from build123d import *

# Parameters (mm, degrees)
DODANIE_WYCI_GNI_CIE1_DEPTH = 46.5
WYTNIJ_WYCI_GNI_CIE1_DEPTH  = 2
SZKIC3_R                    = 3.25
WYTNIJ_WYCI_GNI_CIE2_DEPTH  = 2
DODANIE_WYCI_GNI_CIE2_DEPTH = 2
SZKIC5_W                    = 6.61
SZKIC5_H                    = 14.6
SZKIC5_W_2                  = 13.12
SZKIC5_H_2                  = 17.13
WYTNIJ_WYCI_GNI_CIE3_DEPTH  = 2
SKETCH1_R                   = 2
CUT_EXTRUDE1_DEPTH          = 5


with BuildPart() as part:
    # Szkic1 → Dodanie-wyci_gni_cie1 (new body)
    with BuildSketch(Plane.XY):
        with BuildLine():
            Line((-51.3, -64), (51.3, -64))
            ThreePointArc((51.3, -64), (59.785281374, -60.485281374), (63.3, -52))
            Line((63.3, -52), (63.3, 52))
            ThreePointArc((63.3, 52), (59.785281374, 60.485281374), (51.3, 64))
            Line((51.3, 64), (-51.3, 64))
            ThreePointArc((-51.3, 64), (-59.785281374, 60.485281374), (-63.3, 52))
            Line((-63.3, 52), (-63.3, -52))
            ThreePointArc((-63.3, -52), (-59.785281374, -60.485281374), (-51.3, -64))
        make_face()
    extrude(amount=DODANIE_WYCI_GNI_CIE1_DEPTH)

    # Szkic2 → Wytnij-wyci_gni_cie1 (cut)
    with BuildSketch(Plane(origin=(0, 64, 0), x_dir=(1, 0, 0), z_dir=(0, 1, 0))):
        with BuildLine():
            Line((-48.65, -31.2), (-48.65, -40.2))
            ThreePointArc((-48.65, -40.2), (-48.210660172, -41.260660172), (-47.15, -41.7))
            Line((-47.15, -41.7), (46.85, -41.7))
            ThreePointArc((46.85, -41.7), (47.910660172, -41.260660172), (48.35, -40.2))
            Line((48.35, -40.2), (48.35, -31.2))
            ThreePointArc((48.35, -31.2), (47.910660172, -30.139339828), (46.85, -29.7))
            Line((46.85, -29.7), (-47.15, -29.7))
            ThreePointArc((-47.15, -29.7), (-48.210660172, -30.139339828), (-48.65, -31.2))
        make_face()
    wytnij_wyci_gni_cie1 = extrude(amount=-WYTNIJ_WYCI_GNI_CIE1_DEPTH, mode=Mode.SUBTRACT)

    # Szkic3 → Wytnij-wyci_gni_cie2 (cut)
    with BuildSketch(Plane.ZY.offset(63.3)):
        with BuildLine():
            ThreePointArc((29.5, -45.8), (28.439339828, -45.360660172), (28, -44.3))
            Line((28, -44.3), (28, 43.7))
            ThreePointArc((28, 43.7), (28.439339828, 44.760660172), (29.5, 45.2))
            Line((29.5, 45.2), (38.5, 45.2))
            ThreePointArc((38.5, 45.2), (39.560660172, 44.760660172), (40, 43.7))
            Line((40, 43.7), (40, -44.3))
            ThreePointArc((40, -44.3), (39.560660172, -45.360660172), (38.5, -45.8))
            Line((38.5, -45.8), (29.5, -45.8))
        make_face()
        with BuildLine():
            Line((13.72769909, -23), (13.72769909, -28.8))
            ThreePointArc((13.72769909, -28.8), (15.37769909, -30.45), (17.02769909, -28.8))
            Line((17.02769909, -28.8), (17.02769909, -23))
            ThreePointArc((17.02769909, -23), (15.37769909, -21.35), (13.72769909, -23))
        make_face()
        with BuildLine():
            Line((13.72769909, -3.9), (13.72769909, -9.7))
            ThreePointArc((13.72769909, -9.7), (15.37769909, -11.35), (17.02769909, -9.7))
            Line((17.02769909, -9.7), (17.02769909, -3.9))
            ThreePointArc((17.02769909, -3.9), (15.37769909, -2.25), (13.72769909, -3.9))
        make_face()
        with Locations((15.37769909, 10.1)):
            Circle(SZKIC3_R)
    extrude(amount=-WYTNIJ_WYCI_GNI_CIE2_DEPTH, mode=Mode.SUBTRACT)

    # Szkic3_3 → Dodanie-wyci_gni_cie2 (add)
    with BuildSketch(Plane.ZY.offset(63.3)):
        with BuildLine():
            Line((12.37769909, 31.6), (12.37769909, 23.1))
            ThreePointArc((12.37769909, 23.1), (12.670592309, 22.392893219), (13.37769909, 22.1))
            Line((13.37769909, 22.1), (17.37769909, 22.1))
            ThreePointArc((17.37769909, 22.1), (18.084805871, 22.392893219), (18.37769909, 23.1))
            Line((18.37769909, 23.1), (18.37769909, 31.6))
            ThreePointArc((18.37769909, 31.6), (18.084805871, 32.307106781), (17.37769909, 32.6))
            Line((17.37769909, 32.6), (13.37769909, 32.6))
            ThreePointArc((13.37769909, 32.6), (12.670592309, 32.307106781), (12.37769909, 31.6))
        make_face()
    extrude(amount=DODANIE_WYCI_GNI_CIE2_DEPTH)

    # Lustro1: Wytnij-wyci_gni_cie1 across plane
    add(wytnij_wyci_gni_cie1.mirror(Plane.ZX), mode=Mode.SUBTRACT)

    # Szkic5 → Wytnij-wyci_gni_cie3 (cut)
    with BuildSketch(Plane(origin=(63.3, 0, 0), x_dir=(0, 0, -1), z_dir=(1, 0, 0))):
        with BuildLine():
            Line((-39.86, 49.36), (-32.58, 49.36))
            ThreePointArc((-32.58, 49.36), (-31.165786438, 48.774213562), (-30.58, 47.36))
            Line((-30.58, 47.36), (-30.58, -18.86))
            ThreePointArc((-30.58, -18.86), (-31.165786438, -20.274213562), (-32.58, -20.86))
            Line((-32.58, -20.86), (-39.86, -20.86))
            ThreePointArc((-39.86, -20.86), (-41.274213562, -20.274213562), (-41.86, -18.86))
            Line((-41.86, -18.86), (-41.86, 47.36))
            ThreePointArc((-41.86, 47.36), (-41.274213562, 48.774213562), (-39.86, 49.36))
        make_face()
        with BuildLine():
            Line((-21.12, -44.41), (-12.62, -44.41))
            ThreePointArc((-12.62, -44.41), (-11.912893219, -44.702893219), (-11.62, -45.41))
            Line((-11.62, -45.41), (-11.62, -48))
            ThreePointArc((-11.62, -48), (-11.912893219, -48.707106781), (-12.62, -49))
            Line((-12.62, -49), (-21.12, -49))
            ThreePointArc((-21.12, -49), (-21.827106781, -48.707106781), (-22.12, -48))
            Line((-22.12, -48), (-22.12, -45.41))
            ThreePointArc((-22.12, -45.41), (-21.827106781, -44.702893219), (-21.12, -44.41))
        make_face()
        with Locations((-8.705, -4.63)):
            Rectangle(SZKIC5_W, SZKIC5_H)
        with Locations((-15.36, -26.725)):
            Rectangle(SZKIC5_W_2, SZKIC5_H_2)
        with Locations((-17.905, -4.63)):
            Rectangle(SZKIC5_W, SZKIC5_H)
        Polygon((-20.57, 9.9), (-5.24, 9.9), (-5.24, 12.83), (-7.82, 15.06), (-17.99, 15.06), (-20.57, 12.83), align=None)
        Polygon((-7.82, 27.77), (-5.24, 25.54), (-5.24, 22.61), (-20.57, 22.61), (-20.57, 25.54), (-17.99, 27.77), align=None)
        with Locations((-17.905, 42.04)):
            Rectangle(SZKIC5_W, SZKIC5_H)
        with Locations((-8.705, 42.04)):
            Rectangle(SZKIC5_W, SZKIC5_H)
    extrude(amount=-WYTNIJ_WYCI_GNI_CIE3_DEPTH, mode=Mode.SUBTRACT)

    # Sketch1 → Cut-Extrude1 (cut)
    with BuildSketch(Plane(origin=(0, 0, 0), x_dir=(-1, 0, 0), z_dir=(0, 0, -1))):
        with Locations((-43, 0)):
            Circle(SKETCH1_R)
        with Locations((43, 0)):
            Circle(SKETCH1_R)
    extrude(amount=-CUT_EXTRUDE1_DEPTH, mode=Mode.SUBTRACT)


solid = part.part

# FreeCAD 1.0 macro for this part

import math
import FreeCAD as App
import Part
import Sketcher
Q = App.Units.Quantity

doc = App.newDocument("Part")
body = doc.addObject("PartDesign::Body", "Body")

# Sketch on XY plane
sketch1 = body.newObject("Sketcher::SketchObject", "Sketch")
sketch1.AttachmentSupport = (doc.getObject("XY_Plane"), [""])
sketch1.MapMode = "FlatFace"
sketch1.addGeometry([
    Part.LineSegment(App.Vector(-51, -64, 0), App.Vector(51, -64, 0)),  # 0
    Part.ArcOfCircle(Part.Circle(App.Vector(51, -52, 0), App.Vector(0, 0, 1), 12), math.radians(-90), math.radians(0)),  # 1
    Part.LineSegment(App.Vector(63, -52, 0), App.Vector(63, 52, 0)),  # 2
    Part.ArcOfCircle(Part.Circle(App.Vector(51, 52, 0), App.Vector(0, 0, 1), 12), math.radians(0), math.radians(90)),  # 3
    Part.LineSegment(App.Vector(51, 64, 0), App.Vector(-51, 64, 0)),  # 4
    Part.ArcOfCircle(Part.Circle(App.Vector(-51, 52, 0), App.Vector(0, 0, 1), 12), math.radians(90), math.radians(180)),  # 5
    Part.LineSegment(App.Vector(-63, 52, 0), App.Vector(-63, -52, 0)),  # 6
    Part.ArcOfCircle(Part.Circle(App.Vector(-51, -52, 0), App.Vector(0, 0, 1), 12), math.radians(-180), math.radians(-90)),  # 7
], False)
sketch1.addConstraint([
    Sketcher.Constraint("Tangent", 0, 2, 1, 1),
    Sketcher.Constraint("Tangent", 1, 2, 2, 1),
    Sketcher.Constraint("Tangent", 2, 2, 3, 1),
    Sketcher.Constraint("Tangent", 3, 2, 4, 1),
    Sketcher.Constraint("Tangent", 4, 2, 5, 1),
    Sketcher.Constraint("Tangent", 5, 2, 6, 1),
    Sketcher.Constraint("Tangent", 6, 2, 7, 1),
    Sketcher.Constraint("Tangent", 7, 2, 0, 1),
    Sketcher.Constraint("Horizontal", 0),
    Sketcher.Constraint("Vertical", 2),
    Sketcher.Constraint("Horizontal", 4),
    Sketcher.Constraint("Vertical", 6),
    Sketcher.Constraint("Equal", 1, 3),
    Sketcher.Constraint("Equal", 3, 5),
    Sketcher.Constraint("Equal", 5, 7),
    Sketcher.Constraint("Symmetric", 1, 3, 5, 3, -1, 1),
    Sketcher.Constraint("Radius", 1, Q("12 mm")),
    Sketcher.Constraint("DistanceY", 2, 1, 2, 2, Q("104 mm")),
    Sketcher.Constraint("DistanceX", 0, 1, 0, 2, Q("102.6 mm")),
])
pad1 = body.newObject("PartDesign::Pad", "Pad")
pad1.Profile = sketch1
pad1.Length = 46.5

# Sketch on XZ plane
sketch2 = body.newObject("Sketcher::SketchObject", "Sketch001")
sketch2.AttachmentSupport = (doc.getObject("XZ_Plane"), [""])
sketch2.MapMode = "FlatFace"
sketch2.AttachmentOffset = App.Placement(App.Vector(0, 0, -64), App.Rotation())
sketch2.addGeometry([
    Part.LineSegment(App.Vector(-48.6, 31.2, 0), App.Vector(-48.6, 40.2, 0)),  # 0
    Part.ArcOfCircle(Part.Circle(App.Vector(-47.2, 40.2, 0), App.Vector(0, 0, 1), 1.5), math.radians(90), math.radians(180)),  # 1
    Part.LineSegment(App.Vector(-47.1, 41.7, 0), App.Vector(46.9, 41.7, 0)),  # 2
    Part.ArcOfCircle(Part.Circle(App.Vector(46.9, 40.2, 0), App.Vector(0, 0, 1), 1.5), math.radians(0), math.radians(90)),  # 3
    Part.LineSegment(App.Vector(48.4, 40.2, 0), App.Vector(48.4, 31.2, 0)),  # 4
    Part.ArcOfCircle(Part.Circle(App.Vector(46.9, 31.2, 0), App.Vector(0, 0, 1), 1.5), math.radians(-90), math.radians(0)),  # 5
    Part.LineSegment(App.Vector(46.9, 29.7, 0), App.Vector(-47.1, 29.7, 0)),  # 6
    Part.ArcOfCircle(Part.Circle(App.Vector(-47.2, 31.2, 0), App.Vector(0, 0, 1), 1.5), math.radians(180), math.radians(270)),  # 7
], False)
sketch2.addConstraint([
    Sketcher.Constraint("Tangent", 0, 2, 1, 2),
    Sketcher.Constraint("Tangent", 1, 1, 2, 1),
    Sketcher.Constraint("Tangent", 2, 2, 3, 2),
    Sketcher.Constraint("Tangent", 3, 1, 4, 1),
    Sketcher.Constraint("Tangent", 4, 2, 5, 2),
    Sketcher.Constraint("Tangent", 5, 1, 6, 1),
    Sketcher.Constraint("Tangent", 6, 2, 7, 2),
    Sketcher.Constraint("Tangent", 7, 1, 0, 1),
    Sketcher.Constraint("Vertical", 0),
    Sketcher.Constraint("Horizontal", 2),
    Sketcher.Constraint("Vertical", 4),
    Sketcher.Constraint("Horizontal", 6),
    Sketcher.Constraint("Equal", 1, 3),
    Sketcher.Constraint("Equal", 3, 5),
    Sketcher.Constraint("Equal", 5, 7),
    Sketcher.Constraint("Radius", 1, Q("1.5 mm")),
    Sketcher.Constraint("DistanceX", 2, 1, 2, 2, Q("94 mm")),
    Sketcher.Constraint("DistanceY", 0, 1, 0, 2, Q("9 mm")),
    Sketcher.Constraint("DistanceY", -1, 1, 1, 3, Q("40.2 mm")),
    Sketcher.Constraint("DistanceX", 1, 3, -1, 1, Q("47.15 mm")),
])
pocket1 = body.newObject("PartDesign::Pocket", "Pocket")
pocket1.Profile = sketch2
pocket1.Length = 2
pocket1.Reversed = True

# Sketch on YZ plane
sketch3 = body.newObject("Sketcher::SketchObject", "Sketch002")
sketch3.AttachmentSupport = (doc.getObject("YZ_Plane"), [""])
sketch3.MapMode = "FlatFace"
sketch3.AttachmentOffset = App.Placement(App.Vector(0, 0, -63.3), App.Rotation())
sketch3.addGeometry([
    Part.ArcOfCircle(Part.Circle(App.Vector(-44.3, 29.5, 0), App.Vector(0, 0, 1), 1.5), math.radians(180), math.radians(270)),  # 0
    Part.LineSegment(App.Vector(-45.8, 29.5, 0), App.Vector(-45.8, 38.5, 0)),  # 1
    Part.ArcOfCircle(Part.Circle(App.Vector(-44.3, 38.5, 0), App.Vector(0, 0, 1), 1.5), math.radians(90), math.radians(180)),  # 2
    Part.LineSegment(App.Vector(-44.3, 40, 0), App.Vector(43.7, 40, 0)),  # 3
    Part.ArcOfCircle(Part.Circle(App.Vector(43.7, 38.5, 0), App.Vector(0, 0, 1), 1.5), math.radians(0), math.radians(90)),  # 4
    Part.LineSegment(App.Vector(45.2, 38.5, 0), App.Vector(45.2, 29.5, 0)),  # 5
    Part.ArcOfCircle(Part.Circle(App.Vector(43.7, 29.5, 0), App.Vector(0, 0, 1), 1.5), math.radians(-90), math.radians(0)),  # 6
    Part.LineSegment(App.Vector(43.7, 28, 0), App.Vector(-44.3, 28, 0)),  # 7
    Part.LineSegment(App.Vector(-23, 13.7, 0), App.Vector(-28.8, 13.7, 0)),  # 8
    Part.ArcOfCircle(Part.Circle(App.Vector(-28.8, 15.4, 0), App.Vector(0, 0, 1), 1.6), math.radians(90), math.radians(270)),  # 9
    Part.LineSegment(App.Vector(-28.8, 17, 0), App.Vector(-23, 17, 0)),  # 10
    Part.ArcOfCircle(Part.Circle(App.Vector(-23, 15.4, 0), App.Vector(0, 0, 1), 1.6), math.radians(-90), math.radians(90)),  # 11
    Part.LineSegment(App.Vector(-3.9, 13.7, 0), App.Vector(-9.7, 13.7, 0)),  # 12
    Part.ArcOfCircle(Part.Circle(App.Vector(-9.7, 15.4, 0), App.Vector(0, 0, 1), 1.6), math.radians(90), math.radians(270)),  # 13
    Part.LineSegment(App.Vector(-9.7, 17, 0), App.Vector(-3.9, 17, 0)),  # 14
    Part.ArcOfCircle(Part.Circle(App.Vector(-3.9, 15.4, 0), App.Vector(0, 0, 1), 1.6), math.radians(-90), math.radians(90)),  # 15
    Part.Circle(App.Vector(10.1, 15.4, 0), App.Vector(0, 0, 1), 3.2),  # 16
], False)
sketch3.addConstraint([
    Sketcher.Constraint("Tangent", 0, 1, 1, 1),
    Sketcher.Constraint("Tangent", 1, 2, 2, 2),
    Sketcher.Constraint("Tangent", 2, 1, 3, 1),
    Sketcher.Constraint("Tangent", 3, 2, 4, 2),
    Sketcher.Constraint("Tangent", 4, 1, 5, 1),
    Sketcher.Constraint("Tangent", 5, 2, 6, 2),
    Sketcher.Constraint("Tangent", 6, 1, 7, 1),
    Sketcher.Constraint("Tangent", 7, 2, 0, 2),
    Sketcher.Constraint("Tangent", 8, 2, 9, 2),
    Sketcher.Constraint("Tangent", 9, 1, 10, 1),
    Sketcher.Constraint("Tangent", 10, 2, 11, 2),
    Sketcher.Constraint("Tangent", 11, 1, 8, 1),
    Sketcher.Constraint("Tangent", 12, 2, 13, 2),
    Sketcher.Constraint("Tangent", 13, 1, 14, 1),
    Sketcher.Constraint("Tangent", 14, 2, 15, 2),
    Sketcher.Constraint("Tangent", 15, 1, 12, 1),
    Sketcher.Constraint("Vertical", 1),
    Sketcher.Constraint("Horizontal", 3),
    Sketcher.Constraint("Vertical", 5),
    Sketcher.Constraint("Horizontal", 7),
    Sketcher.Constraint("Horizontal", 8),
    Sketcher.Constraint("Horizontal", 10),
    Sketcher.Constraint("Horizontal", 12),
    Sketcher.Constraint("Horizontal", 14),
    Sketcher.Constraint("Equal", 0, 2),
    Sketcher.Constraint("Equal", 2, 4),
    Sketcher.Constraint("Equal", 4, 6),
    Sketcher.Constraint("Equal", 11, 13),
    Sketcher.Constraint("Horizontal", 11, 3, 13, 3),
    Sketcher.Constraint("Horizontal", 15, 3, 16, 3),
    Sketcher.Constraint("Equal", 10, 12),
    Sketcher.Constraint("Diameter", 16, Q("6.5 mm")),
    Sketcher.Constraint("Radius", 0, Q("1.5 mm")),
    Sketcher.Constraint("DistanceX", 3, 1, 3, 2, Q("88 mm")),
    Sketcher.Constraint("DistanceY", 1, 1, 1, 2, Q("9 mm")),
    Sketcher.Constraint("Radius", 9, Q("1.65 mm")),
    Sketcher.Constraint("DistanceX", 8, 2, 8, 1, Q("5.8 mm")),
    Sketcher.Constraint("DistanceX", 11, 3, -1, 1, Q("23 mm")),
    Sketcher.Constraint("DistanceY", -1, 1, 2, 1, Q("40 mm")),
    Sketcher.Constraint("DistanceX", 15, 3, 16, 3, Q("14 mm")),
    Sketcher.Constraint("DistanceX", 0, 1, 9, 3, Q("17 mm")),
    Sketcher.Constraint("DistanceX", 13, 3, -1, 1, Q("9.7 mm")),
    Sketcher.Constraint("DistanceY", -1, 1, 9, 3, Q("15.377699 mm")),
])
pocket2 = body.newObject("PartDesign::Pocket", "Pocket001")
pocket2.Profile = sketch3
pocket2.Length = 2
pocket2.Reversed = True

# Sketch on YZ plane
sketch4 = body.newObject("Sketcher::SketchObject", "Sketch003")
sketch4.AttachmentSupport = (doc.getObject("YZ_Plane"), [""])
sketch4.MapMode = "FlatFace"
sketch4.AttachmentOffset = App.Placement(App.Vector(0, 0, -63.3), App.Rotation())
sketch4.addGeometry([
    Part.LineSegment(App.Vector(31.6, 12.4, 0), App.Vector(23.1, 12.4, 0)),  # 0
    Part.ArcOfCircle(Part.Circle(App.Vector(23.1, 13.4, 0), App.Vector(0, 0, 1), 1), math.radians(-180), math.radians(-90)),  # 1
    Part.LineSegment(App.Vector(22.1, 13.4, 0), App.Vector(22.1, 17.4, 0)),  # 2
    Part.ArcOfCircle(Part.Circle(App.Vector(23.1, 17.4, 0), App.Vector(0, 0, 1), 1), math.radians(90), math.radians(180)),  # 3
    Part.LineSegment(App.Vector(23.1, 18.4, 0), App.Vector(31.6, 18.4, 0)),  # 4
    Part.ArcOfCircle(Part.Circle(App.Vector(31.6, 17.4, 0), App.Vector(0, 0, 1), 1), math.radians(0), math.radians(90)),  # 5
    Part.LineSegment(App.Vector(32.6, 17.4, 0), App.Vector(32.6, 13.4, 0)),  # 6
    Part.ArcOfCircle(Part.Circle(App.Vector(31.6, 13.4, 0), App.Vector(0, 0, 1), 1), math.radians(-90), math.radians(0)),  # 7
], False)
sketch4.addConstraint([
    Sketcher.Constraint("Tangent", 0, 2, 1, 2),
    Sketcher.Constraint("Tangent", 1, 1, 2, 1),
    Sketcher.Constraint("Tangent", 2, 2, 3, 2),
    Sketcher.Constraint("Tangent", 3, 1, 4, 1),
    Sketcher.Constraint("Tangent", 4, 2, 5, 2),
    Sketcher.Constraint("Tangent", 5, 1, 6, 1),
    Sketcher.Constraint("Tangent", 6, 2, 7, 2),
    Sketcher.Constraint("Tangent", 7, 1, 0, 1),
    Sketcher.Constraint("Horizontal", 0),
    Sketcher.Constraint("Vertical", 2),
    Sketcher.Constraint("Horizontal", 4),
    Sketcher.Constraint("Vertical", 6),
    Sketcher.Constraint("Equal", 1, 3),
    Sketcher.Constraint("Equal", 3, 5),
    Sketcher.Constraint("Equal", 5, 7),
    Sketcher.Constraint("Radius", 1, Q("1 mm")),
    Sketcher.Constraint("DistanceY", 2, 1, 2, 2, Q("4 mm")),
    Sketcher.Constraint("DistanceX", 0, 2, 0, 1, Q("8.5 mm")),
    Sketcher.Constraint("DistanceX", -1, 1, 1, 3, Q("23.1 mm")),
    Sketcher.Constraint("DistanceY", -1, 1, 1, 3, Q("13.377699 mm")),
])
pad2 = body.newObject("PartDesign::Pad", "Pad001")
pad2.Profile = sketch4
pad2.Length = 2
pad2.Reversed = True
doc.recompute()

mirrored = body.newObject("PartDesign::Mirrored", "Mirrored")
mirrored.Originals = [pocket1]
mirrored.MirrorPlane = (doc.getObject("XZ_Plane"), [""])
body.Tip = mirrored

# Sketch on YZ plane
sketch5 = body.newObject("Sketcher::SketchObject", "Sketch004")
sketch5.AttachmentSupport = (doc.getObject("YZ_Plane"), [""])
sketch5.MapMode = "FlatFace"
sketch5.AttachmentOffset = App.Placement(App.Vector(0, 0, 63.3), App.Rotation())
sketch5.addGeometry([
    Part.LineSegment(App.Vector(49.4, 32.6, 0), App.Vector(49.4, 39.9, 0)),  # 0
    Part.ArcOfCircle(Part.Circle(App.Vector(47.4, 39.9, 0), App.Vector(0, 0, 1), 2), math.radians(0), math.radians(90)),  # 1
    Part.LineSegment(App.Vector(47.4, 41.9, 0), App.Vector(-18.9, 41.9, 0)),  # 2
    Part.ArcOfCircle(Part.Circle(App.Vector(-18.9, 39.9, 0), App.Vector(0, 0, 1), 2), math.radians(90), math.radians(180)),  # 3
    Part.LineSegment(App.Vector(-20.9, 39.9, 0), App.Vector(-20.9, 32.6, 0)),  # 4
    Part.ArcOfCircle(Part.Circle(App.Vector(-18.9, 32.6, 0), App.Vector(0, 0, 1), 2), math.radians(-180), math.radians(-90)),  # 5
    Part.LineSegment(App.Vector(-18.9, 30.6, 0), App.Vector(47.4, 30.6, 0)),  # 6
    Part.ArcOfCircle(Part.Circle(App.Vector(47.4, 32.6, 0), App.Vector(0, 0, 1), 2), math.radians(-90), math.radians(0)),  # 7
    Part.LineSegment(App.Vector(-44.4, 12.6, 0), App.Vector(-44.4, 21.1, 0)),  # 8
    Part.ArcOfCircle(Part.Circle(App.Vector(-45.4, 21.1, 0), App.Vector(0, 0, 1), 1), math.radians(0), math.radians(90)),  # 9
    Part.LineSegment(App.Vector(-45.4, 22.1, 0), App.Vector(-48, 22.1, 0)),  # 10
    Part.ArcOfCircle(Part.Circle(App.Vector(-48, 21.1, 0), App.Vector(0, 0, 1), 1), math.radians(90), math.radians(180)),  # 11
    Part.LineSegment(App.Vector(-49, 21.1, 0), App.Vector(-49, 12.6, 0)),  # 12
    Part.ArcOfCircle(Part.Circle(App.Vector(-48, 12.6, 0), App.Vector(0, 0, 1), 1), math.radians(-180), math.radians(-90)),  # 13
    Part.LineSegment(App.Vector(-48, 11.6, 0), App.Vector(-45.4, 11.6, 0)),  # 14
    Part.ArcOfCircle(Part.Circle(App.Vector(-45.4, 12.6, 0), App.Vector(0, 0, 1), 1), math.radians(-90), math.radians(0)),  # 15
    Part.LineSegment(App.Vector(2.7, 12, 0), App.Vector(-11.9, 12, 0)),  # 16
    Part.LineSegment(App.Vector(-11.9, 12, 0), App.Vector(-11.9, 5.4, 0)),  # 17
    Part.LineSegment(App.Vector(-11.9, 5.4, 0), App.Vector(2.7, 5.4, 0)),  # 18
    Part.LineSegment(App.Vector(2.7, 5.4, 0), App.Vector(2.7, 12, 0)),  # 19
    Part.LineSegment(App.Vector(-18.2, 21.9, 0), App.Vector(-35.3, 21.9, 0)),  # 20
    Part.LineSegment(App.Vector(-35.3, 21.9, 0), App.Vector(-35.3, 8.8, 0)),  # 21
    Part.LineSegment(App.Vector(-35.3, 8.8, 0), App.Vector(-18.2, 8.8, 0)),  # 22
    Part.LineSegment(App.Vector(-18.2, 8.8, 0), App.Vector(-18.2, 21.9, 0)),  # 23
    Part.LineSegment(App.Vector(2.7, 21.2, 0), App.Vector(-11.9, 21.2, 0)),  # 24
    Part.LineSegment(App.Vector(-11.9, 21.2, 0), App.Vector(-11.9, 14.6, 0)),  # 25
    Part.LineSegment(App.Vector(-11.9, 14.6, 0), App.Vector(2.7, 14.6, 0)),  # 26
    Part.LineSegment(App.Vector(2.7, 14.6, 0), App.Vector(2.7, 21.2, 0)),  # 27
    Part.LineSegment(App.Vector(9.9, 20.6, 0), App.Vector(9.9, 5.2, 0)),  # 28
    Part.LineSegment(App.Vector(9.9, 5.2, 0), App.Vector(12.8, 5.2, 0)),  # 29
    Part.LineSegment(App.Vector(12.8, 5.2, 0), App.Vector(15.1, 7.8, 0)),  # 30
    Part.LineSegment(App.Vector(15.1, 7.8, 0), App.Vector(15.1, 18, 0)),  # 31
    Part.LineSegment(App.Vector(15.1, 18, 0), App.Vector(12.8, 20.6, 0)),  # 32
    Part.LineSegment(App.Vector(12.8, 20.6, 0), App.Vector(9.9, 20.6, 0)),  # 33
    Part.LineSegment(App.Vector(25.5, 5.2, 0), App.Vector(27.8, 7.8, 0)),  # 34
    Part.LineSegment(App.Vector(27.8, 7.8, 0), App.Vector(27.8, 18, 0)),  # 35
    Part.LineSegment(App.Vector(27.8, 18, 0), App.Vector(25.5, 20.6, 0)),  # 36
    Part.LineSegment(App.Vector(25.5, 20.6, 0), App.Vector(22.6, 20.6, 0)),  # 37
    Part.LineSegment(App.Vector(22.6, 20.6, 0), App.Vector(22.6, 5.2, 0)),  # 38
    Part.LineSegment(App.Vector(22.6, 5.2, 0), App.Vector(25.5, 5.2, 0)),  # 39
    Part.LineSegment(App.Vector(49.3, 21.2, 0), App.Vector(34.7, 21.2, 0)),  # 40
    Part.LineSegment(App.Vector(34.7, 21.2, 0), App.Vector(34.7, 14.6, 0)),  # 41
    Part.LineSegment(App.Vector(34.7, 14.6, 0), App.Vector(49.3, 14.6, 0)),  # 42
    Part.LineSegment(App.Vector(49.3, 14.6, 0), App.Vector(49.3, 21.2, 0)),  # 43
    Part.LineSegment(App.Vector(49.3, 12, 0), App.Vector(34.7, 12, 0)),  # 44
    Part.LineSegment(App.Vector(34.7, 12, 0), App.Vector(34.7, 5.4, 0)),  # 45
    Part.LineSegment(App.Vector(34.7, 5.4, 0), App.Vector(49.3, 5.4, 0)),  # 46
    Part.LineSegment(App.Vector(49.3, 5.4, 0), App.Vector(49.3, 12, 0)),  # 47
], False)
sketch5.addConstraint([
    Sketcher.Constraint("Tangent", 0, 2, 1, 1),
    Sketcher.Constraint("Tangent", 1, 2, 2, 1),
    Sketcher.Constraint("Tangent", 2, 2, 3, 1),
    Sketcher.Constraint("Tangent", 3, 2, 4, 1),
    Sketcher.Constraint("Tangent", 4, 2, 5, 1),
    Sketcher.Constraint("Tangent", 5, 2, 6, 1),
    Sketcher.Constraint("Tangent", 6, 2, 7, 1),
    Sketcher.Constraint("Tangent", 7, 2, 0, 1),
    Sketcher.Constraint("Tangent", 8, 2, 9, 1),
    Sketcher.Constraint("Tangent", 9, 2, 10, 1),
    Sketcher.Constraint("Tangent", 10, 2, 11, 1),
    Sketcher.Constraint("Tangent", 11, 2, 12, 1),
    Sketcher.Constraint("Tangent", 12, 2, 13, 1),
    Sketcher.Constraint("Tangent", 13, 2, 14, 1),
    Sketcher.Constraint("Tangent", 14, 2, 15, 1),
    Sketcher.Constraint("Tangent", 15, 2, 8, 1),
    Sketcher.Constraint("Coincident", 16, 2, 17, 1),
    Sketcher.Constraint("Coincident", 17, 2, 18, 1),
    Sketcher.Constraint("Coincident", 18, 2, 19, 1),
    Sketcher.Constraint("Coincident", 19, 2, 16, 1),
    Sketcher.Constraint("Coincident", 20, 2, 21, 1),
    Sketcher.Constraint("Coincident", 21, 2, 22, 1),
    Sketcher.Constraint("Coincident", 22, 2, 23, 1),
    Sketcher.Constraint("Coincident", 23, 2, 20, 1),
    Sketcher.Constraint("Coincident", 24, 2, 25, 1),
    Sketcher.Constraint("Coincident", 25, 2, 26, 1),
    Sketcher.Constraint("Coincident", 26, 2, 27, 1),
    Sketcher.Constraint("Coincident", 27, 2, 24, 1),
    Sketcher.Constraint("Coincident", 28, 2, 29, 1),
    Sketcher.Constraint("Coincident", 29, 2, 30, 1),
    Sketcher.Constraint("Coincident", 30, 2, 31, 1),
    Sketcher.Constraint("Coincident", 31, 2, 32, 1),
    Sketcher.Constraint("Coincident", 32, 2, 33, 1),
    Sketcher.Constraint("Coincident", 33, 2, 28, 1),
    Sketcher.Constraint("Coincident", 34, 2, 35, 1),
    Sketcher.Constraint("Coincident", 35, 2, 36, 1),
    Sketcher.Constraint("Coincident", 36, 2, 37, 1),
    Sketcher.Constraint("Coincident", 37, 2, 38, 1),
    Sketcher.Constraint("Coincident", 38, 2, 39, 1),
    Sketcher.Constraint("Coincident", 39, 2, 34, 1),
    Sketcher.Constraint("Coincident", 40, 2, 41, 1),
    Sketcher.Constraint("Coincident", 41, 2, 42, 1),
    Sketcher.Constraint("Coincident", 42, 2, 43, 1),
    Sketcher.Constraint("Coincident", 43, 2, 40, 1),
    Sketcher.Constraint("Coincident", 44, 2, 45, 1),
    Sketcher.Constraint("Coincident", 45, 2, 46, 1),
    Sketcher.Constraint("Coincident", 46, 2, 47, 1),
    Sketcher.Constraint("Coincident", 47, 2, 44, 1),
    Sketcher.Constraint("Vertical", 0),
    Sketcher.Constraint("Horizontal", 2),
    Sketcher.Constraint("Vertical", 4),
    Sketcher.Constraint("Horizontal", 6),
    Sketcher.Constraint("Vertical", 8),
    Sketcher.Constraint("Horizontal", 10),
    Sketcher.Constraint("Vertical", 12),
    Sketcher.Constraint("Horizontal", 14),
    Sketcher.Constraint("Horizontal", 16),
    Sketcher.Constraint("Vertical", 17),
    Sketcher.Constraint("Horizontal", 18),
    Sketcher.Constraint("Vertical", 19),
    Sketcher.Constraint("Horizontal", 20),
    Sketcher.Constraint("Vertical", 21),
    Sketcher.Constraint("Horizontal", 22),
    Sketcher.Constraint("Vertical", 23),
    Sketcher.Constraint("Horizontal", 24),
    Sketcher.Constraint("Vertical", 25),
    Sketcher.Constraint("Horizontal", 26),
    Sketcher.Constraint("Vertical", 27),
    Sketcher.Constraint("Vertical", 28),
    Sketcher.Constraint("Horizontal", 29),
    Sketcher.Constraint("Vertical", 31),
    Sketcher.Constraint("Horizontal", 33),
    Sketcher.Constraint("Vertical", 35),
    Sketcher.Constraint("Horizontal", 37),
    Sketcher.Constraint("Vertical", 38),
    Sketcher.Constraint("Horizontal", 39),
    Sketcher.Constraint("Horizontal", 40),
    Sketcher.Constraint("Vertical", 41),
    Sketcher.Constraint("Horizontal", 42),
    Sketcher.Constraint("Vertical", 43),
    Sketcher.Constraint("Horizontal", 44),
    Sketcher.Constraint("Vertical", 45),
    Sketcher.Constraint("Horizontal", 46),
    Sketcher.Constraint("Vertical", 47),
    Sketcher.Constraint("Equal", 1, 3),
    Sketcher.Constraint("Equal", 3, 5),
    Sketcher.Constraint("Equal", 5, 7),
    Sketcher.Constraint("Equal", 9, 11),
    Sketcher.Constraint("Equal", 11, 13),
    Sketcher.Constraint("Equal", 13, 15),
    Sketcher.Constraint("Parallel", 30, 34),
    Sketcher.Constraint("Parallel", 32, 36),
    Sketcher.Constraint("Horizontal", 30, 2, 34, 2),
    Sketcher.Constraint("Horizontal", 31, 2, 35, 2),
    Sketcher.Constraint("Horizontal", 33, 2, 36, 2),
    Sketcher.Constraint("Horizontal", 29, 2, 38, 2),
    Sketcher.Constraint("Horizontal", 27, 2, 40, 2),
    Sketcher.Constraint("Horizontal", 26, 2, 41, 2),
    Sketcher.Constraint("Horizontal", 19, 2, 44, 2),
    Sketcher.Constraint("Horizontal", 18, 2, 45, 2),
    Sketcher.Constraint("Vertical", 17, 2, 24, 2),
    Sketcher.Constraint("Vertical", 19, 2, 26, 2),
    Sketcher.Constraint("Vertical", 29, 2, 32, 2),
    Sketcher.Constraint("Vertical", 41, 2, 44, 2),
    Sketcher.Constraint("Vertical", 43, 2, 46, 2),
    Sketcher.Constraint("Equal", 33, 37),
    Sketcher.Constraint("Equal", 26, 40),
    Sketcher.Constraint("Equal", 19, 25),
    Sketcher.Constraint("Equal", 30, 32),
    Sketcher.Constraint("Radius", 1, Q("2 mm")),
    Sketcher.Constraint("Radius", 9, Q("1 mm")),
    Sketcher.Constraint("DistanceX", 16, 2, 16, 1, Q("14.6 mm")),
    Sketcher.Constraint("DistanceY", 8, 1, 8, 2, Q("8.5 mm")),
    Sketcher.Constraint("DistanceX", 11, 3, -1, 1, Q("48 mm")),
    Sketcher.Constraint("DistanceX", 2, 2, 2, 1, Q("66.22 mm")),
    Sketcher.Constraint("DistanceX", 10, 2, 10, 1, Q("2.59 mm")),
    Sketcher.Constraint("DistanceX", 20, 2, 20, 1, Q("17.13 mm")),
    Sketcher.Constraint("DistanceX", 29, 1, 29, 2, Q("2.93 mm")),
    Sketcher.Constraint("DistanceY", 0, 1, 0, 2, Q("7.28 mm")),
    Sketcher.Constraint("DistanceY", 17, 2, 17, 1, Q("6.61 mm")),
    Sketcher.Constraint("DistanceY", 21, 2, 21, 1, Q("13.12 mm")),
    Sketcher.Constraint("DistanceY", 28, 2, 28, 1, Q("15.33 mm")),
    Sketcher.Constraint("DistanceY", 31, 1, 31, 2, Q("10.17 mm")),
    Sketcher.Constraint("DistanceY", -1, 1, 17, 2, Q("5.4 mm")),
    Sketcher.Constraint("DistanceY", -1, 1, 21, 2, Q("8.8 mm")),
    Sketcher.Constraint("DistanceY", -1, 1, 25, 2, Q("14.6 mm")),
    Sketcher.Constraint("DistanceX", -1, 1, 28, 2, Q("9.9 mm")),
    Sketcher.Constraint("DistanceY", 8, 2, 20, 2, Q("0.8 mm")),
    Sketcher.Constraint("DistanceX", 5, 2, 23, 2, Q("0.7 mm")),
    Sketcher.Constraint("DistanceX", 36, 2, 40, 2, Q("9.2 mm")),
    Sketcher.Constraint("DistanceX", -1, 1, 1, 3, Q("47.36 mm")),
    Sketcher.Constraint("DistanceY", -1, 1, 1, 3, Q("39.86 mm")),
    Sketcher.Constraint("DistanceX", 16, 2, -1, 1, Q("11.93 mm")),
    Sketcher.Constraint("DistanceY", -1, 1, 28, 2, Q("5.24 mm")),
    Sketcher.Constraint("DistanceX", -1, 1, 30, 2, Q("15.06 mm")),
    Sketcher.Constraint("DistanceX", -1, 1, 34, 2, Q("27.77 mm")),
])
pocket3 = body.newObject("PartDesign::Pocket", "Pocket002")
pocket3.Profile = sketch5
pocket3.Length = 2

# Sketch on XY plane
sketch6 = body.newObject("Sketcher::SketchObject", "Sketch005")
sketch6.AttachmentSupport = (doc.getObject("XY_Plane"), [""])
sketch6.MapMode = "FlatFace"
sketch6.addGeometry([
    Part.Circle(App.Vector(43, 0, 0), App.Vector(0, 0, 1), 2),
    Part.Circle(App.Vector(-43, 0, 0), App.Vector(0, 0, 1), 2),
], False)
sketch6.addConstraint([
    Sketcher.Constraint("Equal", 0, 1),
    Sketcher.Constraint("Symmetric", 0, 3, 1, 3, -1, 1),
    Sketcher.Constraint("PointOnObject", 0, 3, -1),
    Sketcher.Constraint("Diameter", 0, Q("4 mm")),
    Sketcher.Constraint("DistanceX", -1, 1, 0, 3, Q("43 mm")),
])
pocket4 = body.newObject("PartDesign::Pocket", "Pocket003")
pocket4.Profile = sketch6
pocket4.Length = 5
pocket4.Reversed = True

doc.recompute()
